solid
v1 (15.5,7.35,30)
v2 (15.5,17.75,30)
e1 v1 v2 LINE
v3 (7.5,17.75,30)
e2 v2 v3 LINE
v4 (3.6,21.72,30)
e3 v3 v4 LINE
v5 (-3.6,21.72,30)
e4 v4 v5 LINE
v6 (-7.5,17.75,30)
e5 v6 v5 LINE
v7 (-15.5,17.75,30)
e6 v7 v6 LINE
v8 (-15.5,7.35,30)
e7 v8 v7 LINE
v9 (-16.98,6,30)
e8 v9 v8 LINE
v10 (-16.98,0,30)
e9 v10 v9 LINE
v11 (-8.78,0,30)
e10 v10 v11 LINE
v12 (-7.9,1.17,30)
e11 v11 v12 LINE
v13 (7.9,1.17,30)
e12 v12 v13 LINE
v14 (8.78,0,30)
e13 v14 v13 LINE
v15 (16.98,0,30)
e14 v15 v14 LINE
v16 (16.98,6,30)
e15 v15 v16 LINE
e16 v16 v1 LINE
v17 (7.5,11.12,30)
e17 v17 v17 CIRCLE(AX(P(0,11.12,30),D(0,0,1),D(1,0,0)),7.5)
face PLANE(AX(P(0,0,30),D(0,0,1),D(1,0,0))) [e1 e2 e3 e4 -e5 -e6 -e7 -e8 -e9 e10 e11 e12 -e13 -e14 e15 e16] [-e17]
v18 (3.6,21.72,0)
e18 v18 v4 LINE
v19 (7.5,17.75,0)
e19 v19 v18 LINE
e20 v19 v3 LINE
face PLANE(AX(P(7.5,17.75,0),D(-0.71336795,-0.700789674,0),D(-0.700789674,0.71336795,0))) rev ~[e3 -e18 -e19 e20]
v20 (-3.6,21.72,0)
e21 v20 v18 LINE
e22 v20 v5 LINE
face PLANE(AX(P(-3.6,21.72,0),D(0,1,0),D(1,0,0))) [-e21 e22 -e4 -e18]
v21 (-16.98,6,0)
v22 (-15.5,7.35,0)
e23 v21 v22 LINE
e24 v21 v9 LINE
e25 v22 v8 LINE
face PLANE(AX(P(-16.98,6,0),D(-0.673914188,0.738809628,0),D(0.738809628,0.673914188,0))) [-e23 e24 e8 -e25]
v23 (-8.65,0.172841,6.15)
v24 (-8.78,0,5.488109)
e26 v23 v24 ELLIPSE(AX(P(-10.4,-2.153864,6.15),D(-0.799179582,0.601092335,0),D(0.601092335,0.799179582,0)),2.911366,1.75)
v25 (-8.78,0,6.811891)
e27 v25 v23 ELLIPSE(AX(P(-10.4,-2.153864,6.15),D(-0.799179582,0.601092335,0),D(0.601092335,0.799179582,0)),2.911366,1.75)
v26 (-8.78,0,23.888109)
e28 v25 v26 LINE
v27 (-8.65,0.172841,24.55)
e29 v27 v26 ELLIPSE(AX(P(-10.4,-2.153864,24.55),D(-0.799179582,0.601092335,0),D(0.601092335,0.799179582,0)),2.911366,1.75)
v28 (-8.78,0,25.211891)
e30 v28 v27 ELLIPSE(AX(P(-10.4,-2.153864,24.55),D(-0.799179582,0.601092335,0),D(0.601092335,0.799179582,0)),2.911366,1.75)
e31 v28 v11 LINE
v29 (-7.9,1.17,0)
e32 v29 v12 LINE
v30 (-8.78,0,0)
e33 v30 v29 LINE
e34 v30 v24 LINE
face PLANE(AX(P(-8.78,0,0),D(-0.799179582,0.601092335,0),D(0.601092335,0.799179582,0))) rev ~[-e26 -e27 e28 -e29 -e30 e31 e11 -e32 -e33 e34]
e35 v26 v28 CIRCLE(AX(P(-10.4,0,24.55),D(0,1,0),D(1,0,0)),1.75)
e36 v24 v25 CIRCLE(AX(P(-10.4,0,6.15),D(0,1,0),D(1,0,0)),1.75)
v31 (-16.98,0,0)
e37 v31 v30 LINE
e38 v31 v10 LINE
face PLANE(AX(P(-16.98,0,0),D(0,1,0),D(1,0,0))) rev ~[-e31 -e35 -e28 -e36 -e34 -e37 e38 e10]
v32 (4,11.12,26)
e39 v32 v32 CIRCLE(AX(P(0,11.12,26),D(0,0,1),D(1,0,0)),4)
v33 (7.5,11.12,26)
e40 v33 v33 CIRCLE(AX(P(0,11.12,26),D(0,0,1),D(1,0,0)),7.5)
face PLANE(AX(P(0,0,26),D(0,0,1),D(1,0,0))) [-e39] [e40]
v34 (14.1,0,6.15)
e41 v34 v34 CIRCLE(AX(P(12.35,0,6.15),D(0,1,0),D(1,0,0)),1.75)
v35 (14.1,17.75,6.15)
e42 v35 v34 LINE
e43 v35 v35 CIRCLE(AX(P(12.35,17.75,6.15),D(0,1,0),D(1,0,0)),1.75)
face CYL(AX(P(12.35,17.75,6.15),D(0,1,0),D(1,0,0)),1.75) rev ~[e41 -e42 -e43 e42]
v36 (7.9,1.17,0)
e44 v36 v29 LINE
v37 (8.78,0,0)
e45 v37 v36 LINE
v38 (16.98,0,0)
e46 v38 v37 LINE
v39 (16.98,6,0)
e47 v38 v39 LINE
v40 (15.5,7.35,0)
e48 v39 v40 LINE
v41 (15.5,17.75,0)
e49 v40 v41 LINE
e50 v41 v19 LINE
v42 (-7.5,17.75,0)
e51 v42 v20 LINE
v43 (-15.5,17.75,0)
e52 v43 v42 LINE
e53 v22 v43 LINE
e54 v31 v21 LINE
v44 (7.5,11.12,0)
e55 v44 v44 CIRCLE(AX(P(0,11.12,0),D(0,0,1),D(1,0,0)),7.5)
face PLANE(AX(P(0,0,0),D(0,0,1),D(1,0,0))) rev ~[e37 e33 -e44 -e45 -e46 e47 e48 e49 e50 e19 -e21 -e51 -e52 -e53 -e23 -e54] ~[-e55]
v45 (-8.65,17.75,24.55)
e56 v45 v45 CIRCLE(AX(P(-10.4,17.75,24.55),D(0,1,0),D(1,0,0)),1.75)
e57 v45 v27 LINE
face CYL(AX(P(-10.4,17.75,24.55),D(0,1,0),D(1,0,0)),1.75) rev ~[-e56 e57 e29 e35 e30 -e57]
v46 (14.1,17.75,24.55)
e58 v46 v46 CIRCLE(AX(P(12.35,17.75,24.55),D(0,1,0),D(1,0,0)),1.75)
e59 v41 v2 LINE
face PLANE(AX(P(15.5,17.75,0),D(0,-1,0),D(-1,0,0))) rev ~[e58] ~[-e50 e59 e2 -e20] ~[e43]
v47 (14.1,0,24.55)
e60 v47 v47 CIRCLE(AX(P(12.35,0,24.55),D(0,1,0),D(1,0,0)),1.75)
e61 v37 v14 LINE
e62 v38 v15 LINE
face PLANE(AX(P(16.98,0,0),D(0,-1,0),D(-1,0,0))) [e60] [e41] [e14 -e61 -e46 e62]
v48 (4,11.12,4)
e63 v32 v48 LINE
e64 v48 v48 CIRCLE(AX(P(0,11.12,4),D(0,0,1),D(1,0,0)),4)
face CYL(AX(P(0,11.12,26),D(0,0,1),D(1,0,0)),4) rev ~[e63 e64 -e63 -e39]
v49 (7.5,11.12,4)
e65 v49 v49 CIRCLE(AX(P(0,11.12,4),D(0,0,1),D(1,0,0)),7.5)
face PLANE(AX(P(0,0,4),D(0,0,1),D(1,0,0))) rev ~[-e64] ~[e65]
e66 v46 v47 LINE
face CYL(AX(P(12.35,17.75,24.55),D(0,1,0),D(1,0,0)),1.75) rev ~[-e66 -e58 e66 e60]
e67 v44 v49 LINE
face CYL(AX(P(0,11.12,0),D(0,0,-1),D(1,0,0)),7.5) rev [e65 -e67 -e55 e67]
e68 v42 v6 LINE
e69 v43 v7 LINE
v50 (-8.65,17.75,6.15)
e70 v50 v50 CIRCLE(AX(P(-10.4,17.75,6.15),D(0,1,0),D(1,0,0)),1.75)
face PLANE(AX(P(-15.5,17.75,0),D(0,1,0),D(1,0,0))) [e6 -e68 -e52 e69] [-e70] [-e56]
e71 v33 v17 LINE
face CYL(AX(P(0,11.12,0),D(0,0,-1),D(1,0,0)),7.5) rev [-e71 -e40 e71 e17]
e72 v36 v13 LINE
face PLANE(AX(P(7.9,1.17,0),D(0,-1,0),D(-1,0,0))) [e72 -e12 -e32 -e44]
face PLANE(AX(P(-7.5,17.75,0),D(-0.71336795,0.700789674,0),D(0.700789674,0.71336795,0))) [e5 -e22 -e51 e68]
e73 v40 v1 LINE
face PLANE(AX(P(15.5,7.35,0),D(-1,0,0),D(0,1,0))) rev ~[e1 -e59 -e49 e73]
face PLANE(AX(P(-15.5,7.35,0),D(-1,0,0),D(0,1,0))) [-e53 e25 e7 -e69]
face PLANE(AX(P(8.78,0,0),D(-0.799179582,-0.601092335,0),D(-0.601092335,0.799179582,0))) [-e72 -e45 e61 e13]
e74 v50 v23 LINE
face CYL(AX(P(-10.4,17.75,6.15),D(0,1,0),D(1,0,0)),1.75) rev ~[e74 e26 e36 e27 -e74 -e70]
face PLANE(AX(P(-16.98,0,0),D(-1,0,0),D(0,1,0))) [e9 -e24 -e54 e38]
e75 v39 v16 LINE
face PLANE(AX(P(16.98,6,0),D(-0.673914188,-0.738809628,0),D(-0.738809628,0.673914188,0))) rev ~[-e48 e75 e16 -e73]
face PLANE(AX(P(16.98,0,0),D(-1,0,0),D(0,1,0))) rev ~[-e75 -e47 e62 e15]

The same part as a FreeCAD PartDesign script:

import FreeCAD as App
import Part
import Sketcher

V = App.Vector


def add_polygon(sketch, points):
    """Adds a closed chain of lines whose ends are joined by coincident constraints."""
    first, n = sketch.GeometryCount, len(points)
    for a, b in zip(points, points[1:] + points[:1]):
        sketch.addGeometry(Part.LineSegment(App.Vector(*a, 0), App.Vector(*b, 0)), False)
    for i in range(n):
        sketch.addConstraint(Sketcher.Constraint("Coincident", first + i, 2, first + (i + 1) % n, 1))

doc = App.newDocument("Part")
body = doc.addObject("PartDesign::Body", "Body")

sketch1 = body.newObject("Sketcher::SketchObject", "Sketch")
sketch1.AttachmentSupport = (doc.getObject("XY_Plane"), [""])
sketch1.MapMode = "FlatFace"
add_polygon(sketch1, [(-17, 6), (-17, 0), (-8.8, 0), (-7.9, 1.2), (7.9, 1.2), (8.8, 0), (17, 0), (17, 6), (15.5, 7.3), (15.5, 17.8), (7.5, 17.8), (3.6, 21.7), (-3.6, 21.7), (-7.5, 17.8), (-15.5, 17.8), (-15.5, 7.3)])
sketch1.addGeometry(Part.Circle(V(0, 11.1, 0), V(0, 0, 1), 7.5), False)
sketch1.addConstraint(Sketcher.Constraint("Vertical", 0))
sketch1.addConstraint(Sketcher.Constraint("Horizontal", 1))
sketch1.addConstraint(Sketcher.Constraint("Horizontal", 3))
sketch1.addConstraint(Sketcher.Constraint("Horizontal", 5))
sketch1.addConstraint(Sketcher.Constraint("Vertical", 6))
sketch1.addConstraint(Sketcher.Constraint("Vertical", 8))
sketch1.addConstraint(Sketcher.Constraint("Horizontal", 9))
sketch1.addConstraint(Sketcher.Constraint("Horizontal", 11))
sketch1.addConstraint(Sketcher.Constraint("Horizontal", 13))
sketch1.addConstraint(Sketcher.Constraint("Vertical", 14))
sketch1.addConstraint(Sketcher.Constraint("Symmetric", 1, 2, 4, 2, -1, 1))
sketch1.addConstraint(Sketcher.Constraint("Symmetric", 0, 2, 5, 2, -2))
sketch1.addConstraint(Sketcher.Constraint("Symmetric", 9, 2, 12, 2, -2))
sketch1.addConstraint(Sketcher.Constraint("Symmetric", 7, 2, 14, 2, -2))
sketch1.addConstraint(Sketcher.Constraint("PointOnObject", 16, 3, -2))
sketch1.addConstraint(Sketcher.Constraint("Horizontal", 6, 2, 15, 2))
sketch1.addConstraint(Sketcher.Constraint("Equal", 2, 4))
sketch1.addConstraint(Sketcher.Constraint("Equal", 10, 12))
sketch1.addConstraint(Sketcher.Constraint("Diameter", 16, 15.0))
sketch1.addConstraint(Sketcher.Constraint("DistanceY", 0, 2, 0, 1, 6.0))
sketch1.addConstraint(Sketcher.Constraint("DistanceX", 1, 1, 1, 2, 8.2))
sketch1.addConstraint(Sketcher.Constraint("DistanceY", 8, 1, 8, 2, 10.4))
sketch1.addConstraint(Sketcher.Constraint("DistanceX", 12, 2, 9, 2, 15.0))
sketch1.addConstraint(Sketcher.Constraint("DistanceX", 2, 2, -1, 1, 7.9))
sketch1.addConstraint(Sketcher.Constraint("DistanceX", -1, 1, 7, 2, 15.5))
sketch1.addConstraint(Sketcher.Constraint("DistanceX", -1, 1, 10, 2, 3.6))
sketch1.addConstraint(Sketcher.Constraint("DistanceX", 0, 2, -1, 1, 16.98))
sketch1.addConstraint(Sketcher.Constraint("DistanceY", -1, 1, 8, 2, 17.75))
sketch1.addConstraint(Sketcher.Constraint("DistanceY", -1, 1, 10, 2, 21.72))
sketch1.addConstraint(Sketcher.Constraint("DistanceY", 2, 2, 11, 2, 20.55))
sketch1.addConstraint(Sketcher.Constraint("DistanceY", 16, 3, 10, 2, 10.6))
pad1 = body.newObject("PartDesign::Pad", "Pad")
pad1.Profile = sketch1
pad1.Length = 30

sketch2 = body.newObject("Sketcher::SketchObject", "Sketch001")
sketch2.AttachmentSupport = (doc.getObject("XZ_Plane"), [""])
sketch2.MapMode = "FlatFace"
sketch2.AttachmentOffset = App.Placement(V(0, 0, -17.75), App.Rotation())
sketch2.addGeometry(Part.Circle(V(12.3, 24.6, 0), V(0, 0, 1), 1.8), False)
sketch2.addGeometry(Part.Circle(V(12.3, 6.2, 0), V(0, 0, 1), 1.8), False)
sketch2.addGeometry(Part.Circle(V(-10.4, 6.2, 0), V(0, 0, 1), 1.8), False)
sketch2.addGeometry(Part.Circle(V(-10.4, 24.6, 0), V(0, 0, 1), 1.8), False)
sketch2.addConstraint(Sketcher.Constraint("Equal", 0, 1))
sketch2.addConstraint(Sketcher.Constraint("Equal", 1, 2))
sketch2.addConstraint(Sketcher.Constraint("Equal", 2, 3))
sketch2.addConstraint(Sketcher.Constraint("Horizontal", 1, 3, 2, 3))
sketch2.addConstraint(Sketcher.Constraint("Horizontal", 0, 3, 3, 3))
sketch2.addConstraint(Sketcher.Constraint("Vertical", 0, 3, 1, 3))
sketch2.addConstraint(Sketcher.Constraint("Vertical", 2, 3, 3, 3))
sketch2.addConstraint(Sketcher.Constraint("Diameter", 0, 3.5))
sketch2.addConstraint(Sketcher.Constraint("DistanceX", 2, 3, -1, 1, 10.4))
sketch2.addConstraint(Sketcher.Constraint("DistanceY", 1, 3, 0, 3, 18.4))
sketch2.addConstraint(Sketcher.Constraint("DistanceX", -1, 1, 0, 3, 12.35))
sketch2.addConstraint(Sketcher.Constraint("DistanceY", -1, 1, 0, 3, 24.55))
pocket1 = body.newObject("PartDesign::Pocket", "Pocket")
pocket1.Profile = sketch2
pocket1.Length = 17.75
pocket1.Reversed = True

sketch3 = body.newObject("Sketcher::SketchObject", "Sketch002")
sketch3.AttachmentSupport = (doc.getObject("XY_Plane"), [""])
sketch3.MapMode = "FlatFace"
sketch3.AttachmentOffset = App.Placement(V(0, 0, 26), App.Rotation())
sketch3.addGeometry(Part.Circle(V(0, 11.1, 0), V(0, 0, 1), 7.5), False)
sketch3.addGeometry(Part.Circle(V(0, 11.1, 0), V(0, 0, 1), 4), False)
sketch3.addConstraint(Sketcher.Constraint("Coincident", 1, 3, 0, 3))
sketch3.addConstraint(Sketcher.Constraint("PointOnObject", 0, 3, -2))
sketch3.addConstraint(Sketcher.Constraint("Diameter", 1, 8.0))
sketch3.addConstraint(Sketcher.Constraint("Diameter", 0, 15.0))
sketch3.addConstraint(Sketcher.Constraint("DistanceY", -1, 1, 0, 3, 11.12))
pad2 = body.newObject("PartDesign::Pad", "Pad001")
pad2.Profile = sketch3
pad2.Length = 22
pad2.Reversed = True

doc.recompute()
